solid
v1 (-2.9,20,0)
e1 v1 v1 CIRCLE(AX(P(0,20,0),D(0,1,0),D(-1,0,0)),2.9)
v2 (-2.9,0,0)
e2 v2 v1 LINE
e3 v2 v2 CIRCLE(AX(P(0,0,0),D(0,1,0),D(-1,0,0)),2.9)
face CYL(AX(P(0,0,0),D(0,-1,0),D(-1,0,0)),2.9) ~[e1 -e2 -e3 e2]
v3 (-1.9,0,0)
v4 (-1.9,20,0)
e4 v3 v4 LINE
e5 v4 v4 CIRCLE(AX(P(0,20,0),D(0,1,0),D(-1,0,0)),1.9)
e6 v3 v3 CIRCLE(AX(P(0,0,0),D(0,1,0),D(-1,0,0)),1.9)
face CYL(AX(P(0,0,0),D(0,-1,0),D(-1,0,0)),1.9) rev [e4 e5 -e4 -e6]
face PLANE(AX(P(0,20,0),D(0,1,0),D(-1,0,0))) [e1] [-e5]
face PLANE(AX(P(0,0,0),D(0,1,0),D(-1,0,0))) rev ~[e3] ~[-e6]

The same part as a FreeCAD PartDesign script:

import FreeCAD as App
import Part
import Sketcher

V = App.Vector

doc = App.newDocument("Part")
body = doc.addObject("PartDesign::Body", "Body")

sketch1 = doc.addObject("Sketcher::SketchObject", "Sketch")
body.addObject(sketch1)
sketch1.AttachmentSupport = (doc.XZ_Plane, [""])
sketch1.MapMode = "FlatFace"
sketch1.addGeometry([
    Part.Circle(V(0, 0, 0), V(0, 0, 1), 2.9),
    Part.Circle(V(0, 0, 0), V(0, 0, 1), 1.9),
], False)
sketch1.addConstraint([
    Sketcher.Constraint("Coincident", 0, 3, -1, 1),
    Sketcher.Constraint("Coincident", 1, 3, -1, 1),
    Sketcher.Constraint("Diameter", 1, 3.8),
    Sketcher.Constraint("Diameter", 0, 5.8),
])
pad1 = doc.addObject("PartDesign::Pad", "Pad")
body.addObject(pad1)
pad1.Profile = sketch1
pad1.Length = 20
pad1.Reversed = True

doc.recompute()
